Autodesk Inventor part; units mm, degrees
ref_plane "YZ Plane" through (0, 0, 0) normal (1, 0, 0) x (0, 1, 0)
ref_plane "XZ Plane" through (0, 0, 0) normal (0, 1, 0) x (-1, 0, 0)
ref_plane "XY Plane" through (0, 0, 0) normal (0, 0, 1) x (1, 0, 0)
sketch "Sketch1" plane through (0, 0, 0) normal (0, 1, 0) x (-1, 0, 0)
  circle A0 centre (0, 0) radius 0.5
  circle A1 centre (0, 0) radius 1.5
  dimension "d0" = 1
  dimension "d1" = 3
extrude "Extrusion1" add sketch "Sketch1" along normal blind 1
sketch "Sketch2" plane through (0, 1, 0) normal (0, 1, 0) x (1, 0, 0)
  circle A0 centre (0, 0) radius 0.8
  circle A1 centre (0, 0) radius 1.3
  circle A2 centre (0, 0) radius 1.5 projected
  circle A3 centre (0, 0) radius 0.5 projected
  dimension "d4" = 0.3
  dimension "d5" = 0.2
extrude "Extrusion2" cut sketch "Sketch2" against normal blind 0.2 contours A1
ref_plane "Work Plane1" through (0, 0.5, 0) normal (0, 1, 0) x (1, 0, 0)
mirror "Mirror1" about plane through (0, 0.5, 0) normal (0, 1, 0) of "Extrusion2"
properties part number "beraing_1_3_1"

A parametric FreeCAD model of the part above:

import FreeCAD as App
import Part
import Sketcher

V = App.Vector

doc = App.newDocument("Part")
body = doc.addObject("PartDesign::Body", "Body")

# Sketch on XZ plane
sketch1 = body.newObject("Sketcher::SketchObject", "Sketch")
sketch1.AttachmentSupport = (doc.getObject("XZ_Plane"), [""])
sketch1.MapMode = "FlatFace"
sketch1.addGeometry([
    Part.Circle(V(0, 0, 0), V(0, 0, 1), 1.5),
    Part.Circle(V(0, 0, 0), V(0, 0, 1), 0.5),
], False)
sketch1.addConstraint([
    Sketcher.Constraint("Coincident", 0, 3, -1, 1),
    Sketcher.Constraint("Coincident", 1, 3, -1, 1),
    Sketcher.Constraint("Diameter", 0, 3.0),
    Sketcher.Constraint("Diameter", 1, 1.0),
])
pad1 = body.newObject("PartDesign::Pad", "Pad")
pad1.Profile = sketch1
pad1.Length = 1
pad1.Reversed = True

# Sketch on XZ plane
sketch2 = body.newObject("Sketcher::SketchObject", "Sketch001")
sketch2.AttachmentSupport = (doc.getObject("XZ_Plane"), [""])
sketch2.MapMode = "FlatFace"
sketch2.AttachmentOffset = App.Placement(V(0, 0, -1), App.Rotation())
sketch2.addGeometry([
    Part.Circle(V(0, 0, 0), V(0, 0, 1), 1.3),
    Part.Circle(V(0, 0, 0), V(0, 0, 1), 0.8),
], False)
sketch2.addConstraint([
    Sketcher.Constraint("Coincident", 0, 3, -1, 1),
    Sketcher.Constraint("Coincident", 1, 3, -1, 1),
    Sketcher.Constraint("Diameter", 0, 2.6),
    Sketcher.Constraint("Diameter", 1, 1.6),
])
pocket1 = body.newObject("PartDesign::Pocket", "Pocket")
pocket1.Profile = sketch2
pocket1.Length = 0.2
pocket1.Reversed = True
doc.recompute()

datumplane = body.newObject("PartDesign::Plane", "DatumPlane")
datumplane.AttachmentSupport = (doc.getObject("XZ_Plane"), [""])
datumplane.MapMode = "FlatFace"
datumplane.AttachmentOffset = App.Placement(V(0, 0, -0.5), App.Rotation())
mirrored = body.newObject("PartDesign::Mirrored", "Mirrored")
mirrored.Originals = [pocket1]
mirrored.MirrorPlane = (datumplane, [""])
body.Tip = mirrored

doc.recompute()
